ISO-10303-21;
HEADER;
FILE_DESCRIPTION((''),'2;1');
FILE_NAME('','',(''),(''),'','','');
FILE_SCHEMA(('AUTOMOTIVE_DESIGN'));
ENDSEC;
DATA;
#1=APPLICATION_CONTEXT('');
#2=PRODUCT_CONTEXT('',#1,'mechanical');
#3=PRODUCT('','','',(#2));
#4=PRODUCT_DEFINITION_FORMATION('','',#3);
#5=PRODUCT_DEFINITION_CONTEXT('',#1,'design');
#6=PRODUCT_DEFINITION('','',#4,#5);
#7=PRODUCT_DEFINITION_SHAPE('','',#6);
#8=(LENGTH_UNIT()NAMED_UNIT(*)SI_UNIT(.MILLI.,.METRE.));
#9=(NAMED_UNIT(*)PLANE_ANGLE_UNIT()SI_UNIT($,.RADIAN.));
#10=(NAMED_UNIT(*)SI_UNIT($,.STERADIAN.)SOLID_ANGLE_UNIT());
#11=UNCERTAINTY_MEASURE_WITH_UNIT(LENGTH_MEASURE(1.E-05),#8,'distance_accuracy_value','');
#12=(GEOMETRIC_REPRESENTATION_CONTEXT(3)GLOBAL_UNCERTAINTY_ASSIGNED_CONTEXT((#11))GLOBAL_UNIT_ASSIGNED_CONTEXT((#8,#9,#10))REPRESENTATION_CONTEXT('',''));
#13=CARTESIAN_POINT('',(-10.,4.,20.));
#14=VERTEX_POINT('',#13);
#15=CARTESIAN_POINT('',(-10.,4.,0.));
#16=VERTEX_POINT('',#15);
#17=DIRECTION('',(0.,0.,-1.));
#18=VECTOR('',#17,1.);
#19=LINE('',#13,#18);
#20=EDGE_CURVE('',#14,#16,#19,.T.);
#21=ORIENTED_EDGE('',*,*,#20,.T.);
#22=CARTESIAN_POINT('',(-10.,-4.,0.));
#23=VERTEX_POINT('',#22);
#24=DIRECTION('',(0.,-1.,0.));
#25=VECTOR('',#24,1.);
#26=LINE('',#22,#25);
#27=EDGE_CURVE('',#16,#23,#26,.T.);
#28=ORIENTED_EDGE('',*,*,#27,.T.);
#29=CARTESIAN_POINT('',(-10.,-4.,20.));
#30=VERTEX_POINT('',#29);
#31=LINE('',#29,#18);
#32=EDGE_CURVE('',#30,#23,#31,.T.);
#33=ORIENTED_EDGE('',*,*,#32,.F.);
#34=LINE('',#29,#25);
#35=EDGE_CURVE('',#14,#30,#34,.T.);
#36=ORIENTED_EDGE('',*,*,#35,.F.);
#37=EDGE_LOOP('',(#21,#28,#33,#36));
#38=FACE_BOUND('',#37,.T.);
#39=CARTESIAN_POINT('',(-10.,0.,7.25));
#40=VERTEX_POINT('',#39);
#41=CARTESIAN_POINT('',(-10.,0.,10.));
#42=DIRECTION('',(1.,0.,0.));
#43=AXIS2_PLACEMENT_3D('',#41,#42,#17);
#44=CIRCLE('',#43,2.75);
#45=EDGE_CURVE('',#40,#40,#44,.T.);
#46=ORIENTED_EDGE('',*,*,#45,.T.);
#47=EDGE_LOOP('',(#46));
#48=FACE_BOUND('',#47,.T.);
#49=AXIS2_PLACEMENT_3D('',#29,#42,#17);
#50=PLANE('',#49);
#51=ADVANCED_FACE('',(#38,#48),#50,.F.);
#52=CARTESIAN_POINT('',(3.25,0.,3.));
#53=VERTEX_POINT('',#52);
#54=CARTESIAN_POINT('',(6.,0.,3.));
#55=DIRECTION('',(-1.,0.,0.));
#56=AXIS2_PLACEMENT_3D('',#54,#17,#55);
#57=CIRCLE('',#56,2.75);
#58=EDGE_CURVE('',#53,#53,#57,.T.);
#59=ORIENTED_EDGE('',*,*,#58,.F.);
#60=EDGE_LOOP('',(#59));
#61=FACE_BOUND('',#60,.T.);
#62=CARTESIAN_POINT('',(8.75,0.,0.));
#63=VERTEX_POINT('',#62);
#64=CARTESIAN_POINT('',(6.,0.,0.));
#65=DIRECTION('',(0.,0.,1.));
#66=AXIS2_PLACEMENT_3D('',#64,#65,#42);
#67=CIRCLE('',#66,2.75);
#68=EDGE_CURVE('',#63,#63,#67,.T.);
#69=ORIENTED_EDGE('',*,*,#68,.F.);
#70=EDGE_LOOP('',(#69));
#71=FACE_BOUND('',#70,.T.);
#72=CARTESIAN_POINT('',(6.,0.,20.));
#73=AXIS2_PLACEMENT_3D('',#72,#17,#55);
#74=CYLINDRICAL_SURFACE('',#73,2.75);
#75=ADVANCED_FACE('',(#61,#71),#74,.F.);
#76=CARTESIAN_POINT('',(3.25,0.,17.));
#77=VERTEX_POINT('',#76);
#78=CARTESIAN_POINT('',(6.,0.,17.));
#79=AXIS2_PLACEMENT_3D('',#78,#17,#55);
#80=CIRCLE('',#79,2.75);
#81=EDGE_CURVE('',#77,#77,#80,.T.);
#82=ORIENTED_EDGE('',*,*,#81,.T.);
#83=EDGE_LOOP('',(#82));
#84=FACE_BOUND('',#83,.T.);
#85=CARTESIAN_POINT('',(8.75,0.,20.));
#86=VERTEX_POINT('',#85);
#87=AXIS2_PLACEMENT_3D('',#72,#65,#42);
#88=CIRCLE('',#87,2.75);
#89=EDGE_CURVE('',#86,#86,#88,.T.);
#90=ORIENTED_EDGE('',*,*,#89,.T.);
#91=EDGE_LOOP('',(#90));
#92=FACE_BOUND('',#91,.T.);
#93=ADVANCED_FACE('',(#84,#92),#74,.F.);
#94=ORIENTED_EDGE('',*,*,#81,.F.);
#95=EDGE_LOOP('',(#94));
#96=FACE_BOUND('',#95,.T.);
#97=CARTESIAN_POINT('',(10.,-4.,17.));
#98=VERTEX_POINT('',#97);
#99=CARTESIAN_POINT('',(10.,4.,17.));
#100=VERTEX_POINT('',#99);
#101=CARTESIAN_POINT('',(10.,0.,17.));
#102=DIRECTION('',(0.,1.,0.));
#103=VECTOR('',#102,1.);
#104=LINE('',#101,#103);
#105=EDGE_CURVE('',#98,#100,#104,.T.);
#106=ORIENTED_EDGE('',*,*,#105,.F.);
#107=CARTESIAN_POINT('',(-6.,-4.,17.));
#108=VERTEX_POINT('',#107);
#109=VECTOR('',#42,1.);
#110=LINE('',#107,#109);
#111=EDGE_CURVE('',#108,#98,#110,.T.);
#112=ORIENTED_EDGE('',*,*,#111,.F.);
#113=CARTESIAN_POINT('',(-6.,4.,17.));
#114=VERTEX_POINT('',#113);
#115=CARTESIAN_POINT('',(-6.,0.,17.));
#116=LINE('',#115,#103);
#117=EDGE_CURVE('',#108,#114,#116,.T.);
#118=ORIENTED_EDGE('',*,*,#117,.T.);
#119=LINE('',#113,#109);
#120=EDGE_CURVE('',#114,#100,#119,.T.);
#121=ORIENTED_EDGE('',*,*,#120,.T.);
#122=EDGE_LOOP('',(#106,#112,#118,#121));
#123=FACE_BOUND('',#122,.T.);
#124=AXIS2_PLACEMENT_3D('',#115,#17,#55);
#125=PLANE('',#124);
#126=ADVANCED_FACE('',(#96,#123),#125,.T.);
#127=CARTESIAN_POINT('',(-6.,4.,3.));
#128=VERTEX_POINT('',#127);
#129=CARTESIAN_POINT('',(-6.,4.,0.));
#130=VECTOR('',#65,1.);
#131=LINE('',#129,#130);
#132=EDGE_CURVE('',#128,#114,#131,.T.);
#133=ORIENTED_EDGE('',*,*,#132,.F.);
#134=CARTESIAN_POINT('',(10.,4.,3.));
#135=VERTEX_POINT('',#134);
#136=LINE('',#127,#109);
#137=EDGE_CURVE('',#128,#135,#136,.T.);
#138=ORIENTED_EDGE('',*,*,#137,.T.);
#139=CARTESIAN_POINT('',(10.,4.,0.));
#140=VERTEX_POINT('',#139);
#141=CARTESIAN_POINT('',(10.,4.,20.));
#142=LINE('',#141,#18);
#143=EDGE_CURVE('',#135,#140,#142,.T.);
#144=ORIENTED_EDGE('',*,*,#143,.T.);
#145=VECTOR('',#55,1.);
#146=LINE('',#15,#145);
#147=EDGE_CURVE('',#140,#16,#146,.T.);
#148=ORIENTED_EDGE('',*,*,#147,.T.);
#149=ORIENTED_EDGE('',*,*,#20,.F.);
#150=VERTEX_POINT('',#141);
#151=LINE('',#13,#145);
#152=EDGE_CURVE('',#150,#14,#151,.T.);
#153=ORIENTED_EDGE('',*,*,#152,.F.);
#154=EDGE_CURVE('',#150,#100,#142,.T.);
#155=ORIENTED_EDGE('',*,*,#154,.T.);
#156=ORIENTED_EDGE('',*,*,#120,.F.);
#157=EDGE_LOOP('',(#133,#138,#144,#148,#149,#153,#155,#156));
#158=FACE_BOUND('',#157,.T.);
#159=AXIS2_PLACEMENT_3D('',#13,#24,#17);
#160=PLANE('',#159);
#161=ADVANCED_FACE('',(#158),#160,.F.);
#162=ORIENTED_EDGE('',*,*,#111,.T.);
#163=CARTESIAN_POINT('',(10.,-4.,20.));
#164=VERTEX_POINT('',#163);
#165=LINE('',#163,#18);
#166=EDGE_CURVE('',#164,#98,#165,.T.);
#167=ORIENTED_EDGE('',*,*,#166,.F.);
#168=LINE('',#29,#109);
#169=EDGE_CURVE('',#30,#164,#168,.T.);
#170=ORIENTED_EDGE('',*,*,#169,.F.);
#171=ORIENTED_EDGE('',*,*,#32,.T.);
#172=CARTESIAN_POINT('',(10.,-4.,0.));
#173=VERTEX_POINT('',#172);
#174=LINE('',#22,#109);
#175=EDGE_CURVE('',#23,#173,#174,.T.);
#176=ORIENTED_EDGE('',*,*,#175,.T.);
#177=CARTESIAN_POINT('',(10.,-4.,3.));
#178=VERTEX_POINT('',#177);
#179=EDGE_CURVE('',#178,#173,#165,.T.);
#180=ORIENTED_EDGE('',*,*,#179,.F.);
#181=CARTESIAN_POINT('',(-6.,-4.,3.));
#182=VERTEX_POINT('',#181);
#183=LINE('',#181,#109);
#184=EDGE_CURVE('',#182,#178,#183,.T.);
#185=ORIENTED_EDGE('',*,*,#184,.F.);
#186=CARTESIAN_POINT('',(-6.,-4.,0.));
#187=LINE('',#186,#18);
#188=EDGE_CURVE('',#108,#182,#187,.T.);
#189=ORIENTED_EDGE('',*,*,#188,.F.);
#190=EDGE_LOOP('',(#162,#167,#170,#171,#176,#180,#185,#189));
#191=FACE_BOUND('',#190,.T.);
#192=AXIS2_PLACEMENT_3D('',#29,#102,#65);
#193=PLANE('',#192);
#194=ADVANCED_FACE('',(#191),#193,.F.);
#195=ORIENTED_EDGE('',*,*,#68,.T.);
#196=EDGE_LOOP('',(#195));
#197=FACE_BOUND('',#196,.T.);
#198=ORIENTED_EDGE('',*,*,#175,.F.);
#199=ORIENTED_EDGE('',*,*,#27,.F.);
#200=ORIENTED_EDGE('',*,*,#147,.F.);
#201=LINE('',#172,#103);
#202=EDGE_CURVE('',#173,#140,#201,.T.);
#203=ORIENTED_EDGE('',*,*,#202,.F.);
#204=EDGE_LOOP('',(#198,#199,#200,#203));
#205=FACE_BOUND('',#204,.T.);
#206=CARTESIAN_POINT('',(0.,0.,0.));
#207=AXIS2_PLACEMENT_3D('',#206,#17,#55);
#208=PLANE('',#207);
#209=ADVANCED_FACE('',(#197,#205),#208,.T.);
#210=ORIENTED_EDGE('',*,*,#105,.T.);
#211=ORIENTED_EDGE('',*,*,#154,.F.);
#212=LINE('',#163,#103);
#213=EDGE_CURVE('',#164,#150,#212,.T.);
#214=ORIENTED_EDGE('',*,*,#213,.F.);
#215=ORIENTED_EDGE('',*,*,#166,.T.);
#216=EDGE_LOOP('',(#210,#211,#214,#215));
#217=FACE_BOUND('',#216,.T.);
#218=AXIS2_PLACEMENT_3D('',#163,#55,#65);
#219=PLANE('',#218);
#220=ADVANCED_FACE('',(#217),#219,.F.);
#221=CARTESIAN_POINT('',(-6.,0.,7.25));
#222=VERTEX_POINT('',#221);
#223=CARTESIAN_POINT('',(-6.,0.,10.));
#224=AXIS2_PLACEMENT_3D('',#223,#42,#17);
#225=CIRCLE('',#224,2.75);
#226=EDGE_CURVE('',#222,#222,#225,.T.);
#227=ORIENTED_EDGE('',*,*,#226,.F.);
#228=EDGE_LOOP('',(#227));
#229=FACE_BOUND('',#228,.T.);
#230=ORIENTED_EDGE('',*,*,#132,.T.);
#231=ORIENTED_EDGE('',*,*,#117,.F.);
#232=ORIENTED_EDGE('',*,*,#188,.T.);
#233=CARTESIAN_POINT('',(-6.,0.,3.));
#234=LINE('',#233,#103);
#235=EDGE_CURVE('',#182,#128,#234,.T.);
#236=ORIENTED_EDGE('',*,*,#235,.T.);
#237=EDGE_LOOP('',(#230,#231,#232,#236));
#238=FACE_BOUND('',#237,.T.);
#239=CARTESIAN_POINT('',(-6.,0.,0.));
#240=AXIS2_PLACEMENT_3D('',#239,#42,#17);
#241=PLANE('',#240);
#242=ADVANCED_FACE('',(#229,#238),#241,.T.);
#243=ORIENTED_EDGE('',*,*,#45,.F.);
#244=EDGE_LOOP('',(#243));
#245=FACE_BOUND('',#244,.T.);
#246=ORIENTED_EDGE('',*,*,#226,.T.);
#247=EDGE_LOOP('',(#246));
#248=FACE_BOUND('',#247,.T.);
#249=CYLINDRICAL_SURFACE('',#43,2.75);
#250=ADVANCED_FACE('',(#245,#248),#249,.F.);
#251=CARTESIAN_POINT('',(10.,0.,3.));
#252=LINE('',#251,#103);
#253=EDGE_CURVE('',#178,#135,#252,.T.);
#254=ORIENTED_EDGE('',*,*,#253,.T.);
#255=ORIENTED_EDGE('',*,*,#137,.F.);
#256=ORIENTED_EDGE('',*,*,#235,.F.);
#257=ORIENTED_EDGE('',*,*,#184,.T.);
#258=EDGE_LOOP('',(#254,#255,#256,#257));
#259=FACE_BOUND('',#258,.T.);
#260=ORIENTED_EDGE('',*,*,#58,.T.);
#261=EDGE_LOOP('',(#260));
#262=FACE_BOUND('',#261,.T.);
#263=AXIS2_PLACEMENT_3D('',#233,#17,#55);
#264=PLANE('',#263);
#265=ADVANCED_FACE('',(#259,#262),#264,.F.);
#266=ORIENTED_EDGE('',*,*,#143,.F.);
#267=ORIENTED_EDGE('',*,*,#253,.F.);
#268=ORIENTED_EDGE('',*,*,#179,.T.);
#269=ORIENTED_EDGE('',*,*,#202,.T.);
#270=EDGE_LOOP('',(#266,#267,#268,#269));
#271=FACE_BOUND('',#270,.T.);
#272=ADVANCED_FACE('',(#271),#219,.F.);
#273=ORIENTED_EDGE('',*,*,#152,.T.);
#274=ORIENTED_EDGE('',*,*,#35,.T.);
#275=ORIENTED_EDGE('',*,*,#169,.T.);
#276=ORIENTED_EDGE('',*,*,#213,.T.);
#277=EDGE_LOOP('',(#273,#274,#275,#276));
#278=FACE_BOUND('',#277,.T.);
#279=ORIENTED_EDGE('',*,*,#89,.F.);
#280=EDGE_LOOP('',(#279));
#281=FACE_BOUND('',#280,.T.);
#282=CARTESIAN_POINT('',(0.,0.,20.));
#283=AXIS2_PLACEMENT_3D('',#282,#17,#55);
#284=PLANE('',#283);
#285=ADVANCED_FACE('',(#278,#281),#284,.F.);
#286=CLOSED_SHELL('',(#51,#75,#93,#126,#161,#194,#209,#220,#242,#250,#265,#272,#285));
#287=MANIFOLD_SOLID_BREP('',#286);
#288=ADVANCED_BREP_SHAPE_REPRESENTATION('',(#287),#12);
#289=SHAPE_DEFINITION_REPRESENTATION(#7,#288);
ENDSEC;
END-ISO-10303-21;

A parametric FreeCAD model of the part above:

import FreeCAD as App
import Part
import Sketcher
Q = App.Units.Quantity

doc = App.newDocument("Part")
params = doc.addObject("Spreadsheet::Sheet", "Params")
for row, (alias, value) in enumerate([
    ("sketch1_diameter", "5.5 mm"),
    ("sketch1_width", "20 mm"),
    ("sketch1_height", "8 mm"),
    ("pad1_length", "20 mm"),
    ("sketch2_width", "8 mm"),
    ("sketch2_height", "14 mm"),
    ("pocket1_length", "16 mm"),
    ("sketch3_diameter", "5.5 mm"),
], start=1):
    params.set(f"A{row}", alias)
    params.set(f"B{row}", "=" + value)
    params.setAlias(f"B{row}", alias)

body = doc.addObject("PartDesign::Body", "Body")

# Sketch on XY plane
sketch1 = body.newObject("Sketcher::SketchObject", "Sketch")
sketch1.AttachmentSupport = (doc.getObject("XY_Plane"), [""])
sketch1.MapMode = "FlatFace"
sketch1.addGeometry(Part.LineSegment(App.Vector(-10, 4, 0), App.Vector(-10, -4, 0)), False)
sketch1.addGeometry(Part.LineSegment(App.Vector(-10, -4, 0), App.Vector(10, -4, 0)), False)
sketch1.addGeometry(Part.LineSegment(App.Vector(10, -4, 0), App.Vector(10, 4, 0)), False)
sketch1.addGeometry(Part.LineSegment(App.Vector(10, 4, 0), App.Vector(-10, 4, 0)), False)
sketch1.addGeometry(Part.Circle(App.Vector(6, 0, 0), App.Vector(0, 0, 1), 2.75), False)
sketch1.addConstraint(Sketcher.Constraint("Coincident", 0, 2, 1, 1))
sketch1.addConstraint(Sketcher.Constraint("Coincident", 1, 2, 2, 1))
sketch1.addConstraint(Sketcher.Constraint("Coincident", 2, 2, 3, 1))
sketch1.addConstraint(Sketcher.Constraint("Coincident", 3, 2, 0, 1))
sketch1.addConstraint(Sketcher.Constraint("Vertical", 0))
sketch1.addConstraint(Sketcher.Constraint("Horizontal", 1))
sketch1.addConstraint(Sketcher.Constraint("Vertical", 2))
sketch1.addConstraint(Sketcher.Constraint("Horizontal", 3))
sketch1.addConstraint(Sketcher.Constraint("Symmetric", 0, 2, 2, 2, -1, 1))
sketch1.addConstraint(Sketcher.Constraint("PointOnObject", 4, 3, -1))
sketch1.addConstraint(Sketcher.Constraint("Diameter", 4, Q("5.5 mm")))
sketch1.addConstraint(Sketcher.Constraint("DistanceX", 1, 1, 1, 2, Q("20 mm")))
sketch1.addConstraint(Sketcher.Constraint("DistanceY", 0, 2, 0, 1, Q("8 mm")))
sketch1.addConstraint(Sketcher.Constraint("DistanceX", -1, 1, 4, 3, Q("6 mm")))
sketch1.setExpression("Constraints[10]", "Params.sketch1_diameter")
sketch1.setExpression("Constraints[11]", "Params.sketch1_width")
sketch1.setExpression("Constraints[12]", "Params.sketch1_height")
pad1 = body.newObject("PartDesign::Pad", "Pad")
pad1.Profile = sketch1
pad1.setExpression("Length", "Params.pad1_length")

# Sketch on YZ plane
sketch2 = body.newObject("Sketcher::SketchObject", "Sketch001")
sketch2.AttachmentSupport = (doc.getObject("YZ_Plane"), [""])
sketch2.MapMode = "FlatFace"
sketch2.AttachmentOffset = App.Placement(App.Vector(0, 0, 10), App.Rotation())
sketch2.addGeometry(Part.LineSegment(App.Vector(4, 17, 0), App.Vector(-4, 17, 0)), False)
sketch2.addGeometry(Part.LineSegment(App.Vector(-4, 17, 0), App.Vector(-4, 3, 0)), False)
sketch2.addGeometry(Part.LineSegment(App.Vector(-4, 3, 0), App.Vector(4, 3, 0)), False)
sketch2.addGeometry(Part.LineSegment(App.Vector(4, 3, 0), App.Vector(4, 17, 0)), False)
sketch2.addConstraint(Sketcher.Constraint("Coincident", 0, 2, 1, 1))
sketch2.addConstraint(Sketcher.Constraint("Coincident", 1, 2, 2, 1))
sketch2.addConstraint(Sketcher.Constraint("Coincident", 2, 2, 3, 1))
sketch2.addConstraint(Sketcher.Constraint("Coincident", 3, 2, 0, 1))
sketch2.addConstraint(Sketcher.Constraint("Horizontal", 0))
sketch2.addConstraint(Sketcher.Constraint("Vertical", 1))
sketch2.addConstraint(Sketcher.Constraint("Horizontal", 2))
sketch2.addConstraint(Sketcher.Constraint("Vertical", 3))
sketch2.addConstraint(Sketcher.Constraint("DistanceX", 0, 2, 0, 1, Q("8 mm")))
sketch2.addConstraint(Sketcher.Constraint("DistanceY", 1, 2, 1, 1, Q("14 mm")))
sketch2.addConstraint(Sketcher.Constraint("DistanceX", 0, 2, -1, 1, Q("4 mm")))
sketch2.addConstraint(Sketcher.Constraint("DistanceY", -1, 1, 0, 2, Q("17 mm")))
sketch2.setExpression("Constraints[8]", "Params.sketch2_width")
sketch2.setExpression("Constraints[9]", "Params.sketch2_height")
pocket1 = body.newObject("PartDesign::Pocket", "Pocket")
pocket1.Profile = sketch2
pocket1.setExpression("Length", "Params.pocket1_length")

# Sketch on YZ plane
sketch3 = body.newObject("Sketcher::SketchObject", "Sketch002")
sketch3.AttachmentSupport = (doc.getObject("YZ_Plane"), [""])
sketch3.MapMode = "FlatFace"
sketch3.AttachmentOffset = App.Placement(App.Vector(0, 0, -6), App.Rotation())
sketch3.addGeometry(Part.Circle(App.Vector(0, 10, 0), App.Vector(0, 0, 1), 2.75), False)
sketch3.addConstraint(Sketcher.Constraint("PointOnObject", 0, 3, -2))
sketch3.addConstraint(Sketcher.Constraint("Diameter", 0, Q("5.5 mm")))
sketch3.addConstraint(Sketcher.Constraint("DistanceY", -1, 1, 0, 3, Q("10 mm")))
sketch3.setExpression("Constraints[1]", "Params.sketch3_diameter")
pocket2 = body.newObject("PartDesign::Pocket", "Pocket001")
pocket2.Profile = sketch3
pocket2.Type = "ThroughAll"

doc.recompute()
